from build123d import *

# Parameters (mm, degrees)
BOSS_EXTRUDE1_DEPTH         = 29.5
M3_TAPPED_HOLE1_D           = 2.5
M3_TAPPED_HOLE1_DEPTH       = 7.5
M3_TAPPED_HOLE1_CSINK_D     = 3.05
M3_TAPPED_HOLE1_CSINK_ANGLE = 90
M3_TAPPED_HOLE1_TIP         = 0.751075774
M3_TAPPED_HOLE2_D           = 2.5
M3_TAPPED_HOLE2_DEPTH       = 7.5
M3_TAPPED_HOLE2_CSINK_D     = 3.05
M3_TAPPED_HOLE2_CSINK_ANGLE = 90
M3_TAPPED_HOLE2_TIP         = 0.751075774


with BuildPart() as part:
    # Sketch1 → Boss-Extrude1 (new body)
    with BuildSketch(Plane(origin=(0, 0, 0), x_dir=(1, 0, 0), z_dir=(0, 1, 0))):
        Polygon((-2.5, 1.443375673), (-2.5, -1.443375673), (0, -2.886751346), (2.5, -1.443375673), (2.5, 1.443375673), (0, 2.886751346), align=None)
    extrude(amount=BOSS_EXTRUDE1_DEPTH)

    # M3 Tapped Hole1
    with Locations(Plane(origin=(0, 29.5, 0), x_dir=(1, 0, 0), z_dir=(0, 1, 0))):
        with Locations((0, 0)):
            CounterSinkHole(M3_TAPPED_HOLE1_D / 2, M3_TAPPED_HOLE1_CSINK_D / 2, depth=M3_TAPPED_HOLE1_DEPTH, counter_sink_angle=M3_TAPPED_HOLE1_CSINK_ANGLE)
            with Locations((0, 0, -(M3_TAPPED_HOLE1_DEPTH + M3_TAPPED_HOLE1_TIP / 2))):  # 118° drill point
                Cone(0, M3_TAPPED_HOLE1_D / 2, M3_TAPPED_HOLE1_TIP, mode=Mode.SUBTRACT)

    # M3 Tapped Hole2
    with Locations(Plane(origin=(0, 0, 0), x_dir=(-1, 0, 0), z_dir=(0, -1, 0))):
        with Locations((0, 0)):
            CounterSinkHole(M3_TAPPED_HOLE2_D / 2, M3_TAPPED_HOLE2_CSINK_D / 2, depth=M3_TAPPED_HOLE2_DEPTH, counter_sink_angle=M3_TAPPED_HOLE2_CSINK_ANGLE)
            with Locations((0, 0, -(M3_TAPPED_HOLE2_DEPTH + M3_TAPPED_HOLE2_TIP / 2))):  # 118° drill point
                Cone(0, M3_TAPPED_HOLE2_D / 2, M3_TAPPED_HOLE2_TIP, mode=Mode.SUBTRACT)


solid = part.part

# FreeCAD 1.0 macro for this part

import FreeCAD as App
import Part
import Sketcher

V = App.Vector
Q = App.Units.Quantity


def add_polygon(sketch, points):
    """Adds a closed chain of lines whose ends are joined by coincident constraints."""
    first, n = sketch.GeometryCount, len(points)
    for a, b in zip(points, points[1:] + points[:1]):
        sketch.addGeometry(Part.LineSegment(App.Vector(*a, 0), App.Vector(*b, 0)), False)
    for i in range(n):
        sketch.addConstraint(Sketcher.Constraint("Coincident", first + i, 2, first + (i + 1) % n, 1))

doc = App.newDocument("Part")
body = doc.addObject("PartDesign::Body", "Body")

# Sketch on XZ plane
sketch1 = body.newObject("Sketcher::SketchObject", "Sketch")
sketch1.AttachmentSupport = (doc.getObject("XZ_Plane"), [""])
sketch1.MapMode = "FlatFace"
add_polygon(sketch1, [(-2.5, -1.443376), (-2.5, 1.443376), (0, 2.886751), (2.5, 1.443376), (2.5, -1.443376), (0, -2.886751)])  # lines 0-5
sketch1.addConstraint([
    Sketcher.Constraint("Vertical", 0),
    Sketcher.Constraint("Vertical", 3),
    Sketcher.Constraint("Symmetric", 0, 2, 3, 2, -1, 1),
    Sketcher.Constraint("Symmetric", 1, 2, 4, 2, -1, 1),
    Sketcher.Constraint("PointOnObject", 1, 2, -2),
    Sketcher.Constraint("Parallel", 2, 5),
    Sketcher.Constraint("Horizontal", 0, 2, 2, 2),
    Sketcher.Constraint("Angle", 1, Q("30 deg")),
    Sketcher.Constraint("DistanceX", 0, 2, 2, 2, Q("5 mm")),
    Sketcher.Constraint("DistanceY", 0, 1, 0, 2, Q("2.886751 mm")),
])
pad1 = body.newObject("PartDesign::Pad", "Pad")
pad1.Profile = sketch1
pad1.Length = 29.5
pad1.Reversed = True

# Sketch on XZ plane
sketch2 = body.newObject("Sketcher::SketchObject", "Sketch001")
sketch2.AttachmentSupport = (doc.getObject("XZ_Plane"), [""])
sketch2.MapMode = "FlatFace"
sketch2.AttachmentOffset = App.Placement(V(0, 0, -29.5), App.Rotation())
sketch2.addGeometry(Part.Circle(V(0, 0, 0), V(0, 0, 1), 1.25), False)
sketch2.addConstraint([
    Sketcher.Constraint("Coincident", 0, 3, -1, 1),
    Sketcher.Constraint("Diameter", 0, Q("2.5 mm")),
])
doc.recompute()
hole = body.newObject("PartDesign::Hole", "Hole")
hole.Profile = sketch2
hole.ThreadType = "None"
hole.Diameter = 2.5
hole.DepthType = "Dimension"
hole.Depth = 7.5
hole.DrillPoint = "Angled"
hole.DrillPointAngle = 118
hole.HoleCutType = "Countersink"
hole.HoleCutDiameter = 3.05
hole.HoleCutCountersinkAngle = 90
hole.Reversed = True

# Sketch on XZ plane
sketch3 = body.newObject("Sketcher::SketchObject", "Sketch002")
sketch3.AttachmentSupport = (doc.getObject("XZ_Plane"), [""])
sketch3.MapMode = "FlatFace"
sketch3.addGeometry(Part.Circle(V(0, 0, 0), V(0, 0, 1), 1.25), False)
sketch3.addConstraint([
    Sketcher.Constraint("Coincident", 0, 3, -1, 1),
    Sketcher.Constraint("Diameter", 0, Q("2.5 mm")),
])
doc.recompute()
hole2 = body.newObject("PartDesign::Hole", "Hole001")
hole2.Profile = sketch3
hole2.ThreadType = "None"
hole2.Diameter = 2.5
hole2.DepthType = "Dimension"
hole2.Depth = 7.5
hole2.DrillPoint = "Angled"
hole2.DrillPointAngle = 118
hole2.HoleCutType = "Countersink"
hole2.HoleCutDiameter = 3.05
hole2.HoleCutCountersinkAngle = 90

doc.recompute()
